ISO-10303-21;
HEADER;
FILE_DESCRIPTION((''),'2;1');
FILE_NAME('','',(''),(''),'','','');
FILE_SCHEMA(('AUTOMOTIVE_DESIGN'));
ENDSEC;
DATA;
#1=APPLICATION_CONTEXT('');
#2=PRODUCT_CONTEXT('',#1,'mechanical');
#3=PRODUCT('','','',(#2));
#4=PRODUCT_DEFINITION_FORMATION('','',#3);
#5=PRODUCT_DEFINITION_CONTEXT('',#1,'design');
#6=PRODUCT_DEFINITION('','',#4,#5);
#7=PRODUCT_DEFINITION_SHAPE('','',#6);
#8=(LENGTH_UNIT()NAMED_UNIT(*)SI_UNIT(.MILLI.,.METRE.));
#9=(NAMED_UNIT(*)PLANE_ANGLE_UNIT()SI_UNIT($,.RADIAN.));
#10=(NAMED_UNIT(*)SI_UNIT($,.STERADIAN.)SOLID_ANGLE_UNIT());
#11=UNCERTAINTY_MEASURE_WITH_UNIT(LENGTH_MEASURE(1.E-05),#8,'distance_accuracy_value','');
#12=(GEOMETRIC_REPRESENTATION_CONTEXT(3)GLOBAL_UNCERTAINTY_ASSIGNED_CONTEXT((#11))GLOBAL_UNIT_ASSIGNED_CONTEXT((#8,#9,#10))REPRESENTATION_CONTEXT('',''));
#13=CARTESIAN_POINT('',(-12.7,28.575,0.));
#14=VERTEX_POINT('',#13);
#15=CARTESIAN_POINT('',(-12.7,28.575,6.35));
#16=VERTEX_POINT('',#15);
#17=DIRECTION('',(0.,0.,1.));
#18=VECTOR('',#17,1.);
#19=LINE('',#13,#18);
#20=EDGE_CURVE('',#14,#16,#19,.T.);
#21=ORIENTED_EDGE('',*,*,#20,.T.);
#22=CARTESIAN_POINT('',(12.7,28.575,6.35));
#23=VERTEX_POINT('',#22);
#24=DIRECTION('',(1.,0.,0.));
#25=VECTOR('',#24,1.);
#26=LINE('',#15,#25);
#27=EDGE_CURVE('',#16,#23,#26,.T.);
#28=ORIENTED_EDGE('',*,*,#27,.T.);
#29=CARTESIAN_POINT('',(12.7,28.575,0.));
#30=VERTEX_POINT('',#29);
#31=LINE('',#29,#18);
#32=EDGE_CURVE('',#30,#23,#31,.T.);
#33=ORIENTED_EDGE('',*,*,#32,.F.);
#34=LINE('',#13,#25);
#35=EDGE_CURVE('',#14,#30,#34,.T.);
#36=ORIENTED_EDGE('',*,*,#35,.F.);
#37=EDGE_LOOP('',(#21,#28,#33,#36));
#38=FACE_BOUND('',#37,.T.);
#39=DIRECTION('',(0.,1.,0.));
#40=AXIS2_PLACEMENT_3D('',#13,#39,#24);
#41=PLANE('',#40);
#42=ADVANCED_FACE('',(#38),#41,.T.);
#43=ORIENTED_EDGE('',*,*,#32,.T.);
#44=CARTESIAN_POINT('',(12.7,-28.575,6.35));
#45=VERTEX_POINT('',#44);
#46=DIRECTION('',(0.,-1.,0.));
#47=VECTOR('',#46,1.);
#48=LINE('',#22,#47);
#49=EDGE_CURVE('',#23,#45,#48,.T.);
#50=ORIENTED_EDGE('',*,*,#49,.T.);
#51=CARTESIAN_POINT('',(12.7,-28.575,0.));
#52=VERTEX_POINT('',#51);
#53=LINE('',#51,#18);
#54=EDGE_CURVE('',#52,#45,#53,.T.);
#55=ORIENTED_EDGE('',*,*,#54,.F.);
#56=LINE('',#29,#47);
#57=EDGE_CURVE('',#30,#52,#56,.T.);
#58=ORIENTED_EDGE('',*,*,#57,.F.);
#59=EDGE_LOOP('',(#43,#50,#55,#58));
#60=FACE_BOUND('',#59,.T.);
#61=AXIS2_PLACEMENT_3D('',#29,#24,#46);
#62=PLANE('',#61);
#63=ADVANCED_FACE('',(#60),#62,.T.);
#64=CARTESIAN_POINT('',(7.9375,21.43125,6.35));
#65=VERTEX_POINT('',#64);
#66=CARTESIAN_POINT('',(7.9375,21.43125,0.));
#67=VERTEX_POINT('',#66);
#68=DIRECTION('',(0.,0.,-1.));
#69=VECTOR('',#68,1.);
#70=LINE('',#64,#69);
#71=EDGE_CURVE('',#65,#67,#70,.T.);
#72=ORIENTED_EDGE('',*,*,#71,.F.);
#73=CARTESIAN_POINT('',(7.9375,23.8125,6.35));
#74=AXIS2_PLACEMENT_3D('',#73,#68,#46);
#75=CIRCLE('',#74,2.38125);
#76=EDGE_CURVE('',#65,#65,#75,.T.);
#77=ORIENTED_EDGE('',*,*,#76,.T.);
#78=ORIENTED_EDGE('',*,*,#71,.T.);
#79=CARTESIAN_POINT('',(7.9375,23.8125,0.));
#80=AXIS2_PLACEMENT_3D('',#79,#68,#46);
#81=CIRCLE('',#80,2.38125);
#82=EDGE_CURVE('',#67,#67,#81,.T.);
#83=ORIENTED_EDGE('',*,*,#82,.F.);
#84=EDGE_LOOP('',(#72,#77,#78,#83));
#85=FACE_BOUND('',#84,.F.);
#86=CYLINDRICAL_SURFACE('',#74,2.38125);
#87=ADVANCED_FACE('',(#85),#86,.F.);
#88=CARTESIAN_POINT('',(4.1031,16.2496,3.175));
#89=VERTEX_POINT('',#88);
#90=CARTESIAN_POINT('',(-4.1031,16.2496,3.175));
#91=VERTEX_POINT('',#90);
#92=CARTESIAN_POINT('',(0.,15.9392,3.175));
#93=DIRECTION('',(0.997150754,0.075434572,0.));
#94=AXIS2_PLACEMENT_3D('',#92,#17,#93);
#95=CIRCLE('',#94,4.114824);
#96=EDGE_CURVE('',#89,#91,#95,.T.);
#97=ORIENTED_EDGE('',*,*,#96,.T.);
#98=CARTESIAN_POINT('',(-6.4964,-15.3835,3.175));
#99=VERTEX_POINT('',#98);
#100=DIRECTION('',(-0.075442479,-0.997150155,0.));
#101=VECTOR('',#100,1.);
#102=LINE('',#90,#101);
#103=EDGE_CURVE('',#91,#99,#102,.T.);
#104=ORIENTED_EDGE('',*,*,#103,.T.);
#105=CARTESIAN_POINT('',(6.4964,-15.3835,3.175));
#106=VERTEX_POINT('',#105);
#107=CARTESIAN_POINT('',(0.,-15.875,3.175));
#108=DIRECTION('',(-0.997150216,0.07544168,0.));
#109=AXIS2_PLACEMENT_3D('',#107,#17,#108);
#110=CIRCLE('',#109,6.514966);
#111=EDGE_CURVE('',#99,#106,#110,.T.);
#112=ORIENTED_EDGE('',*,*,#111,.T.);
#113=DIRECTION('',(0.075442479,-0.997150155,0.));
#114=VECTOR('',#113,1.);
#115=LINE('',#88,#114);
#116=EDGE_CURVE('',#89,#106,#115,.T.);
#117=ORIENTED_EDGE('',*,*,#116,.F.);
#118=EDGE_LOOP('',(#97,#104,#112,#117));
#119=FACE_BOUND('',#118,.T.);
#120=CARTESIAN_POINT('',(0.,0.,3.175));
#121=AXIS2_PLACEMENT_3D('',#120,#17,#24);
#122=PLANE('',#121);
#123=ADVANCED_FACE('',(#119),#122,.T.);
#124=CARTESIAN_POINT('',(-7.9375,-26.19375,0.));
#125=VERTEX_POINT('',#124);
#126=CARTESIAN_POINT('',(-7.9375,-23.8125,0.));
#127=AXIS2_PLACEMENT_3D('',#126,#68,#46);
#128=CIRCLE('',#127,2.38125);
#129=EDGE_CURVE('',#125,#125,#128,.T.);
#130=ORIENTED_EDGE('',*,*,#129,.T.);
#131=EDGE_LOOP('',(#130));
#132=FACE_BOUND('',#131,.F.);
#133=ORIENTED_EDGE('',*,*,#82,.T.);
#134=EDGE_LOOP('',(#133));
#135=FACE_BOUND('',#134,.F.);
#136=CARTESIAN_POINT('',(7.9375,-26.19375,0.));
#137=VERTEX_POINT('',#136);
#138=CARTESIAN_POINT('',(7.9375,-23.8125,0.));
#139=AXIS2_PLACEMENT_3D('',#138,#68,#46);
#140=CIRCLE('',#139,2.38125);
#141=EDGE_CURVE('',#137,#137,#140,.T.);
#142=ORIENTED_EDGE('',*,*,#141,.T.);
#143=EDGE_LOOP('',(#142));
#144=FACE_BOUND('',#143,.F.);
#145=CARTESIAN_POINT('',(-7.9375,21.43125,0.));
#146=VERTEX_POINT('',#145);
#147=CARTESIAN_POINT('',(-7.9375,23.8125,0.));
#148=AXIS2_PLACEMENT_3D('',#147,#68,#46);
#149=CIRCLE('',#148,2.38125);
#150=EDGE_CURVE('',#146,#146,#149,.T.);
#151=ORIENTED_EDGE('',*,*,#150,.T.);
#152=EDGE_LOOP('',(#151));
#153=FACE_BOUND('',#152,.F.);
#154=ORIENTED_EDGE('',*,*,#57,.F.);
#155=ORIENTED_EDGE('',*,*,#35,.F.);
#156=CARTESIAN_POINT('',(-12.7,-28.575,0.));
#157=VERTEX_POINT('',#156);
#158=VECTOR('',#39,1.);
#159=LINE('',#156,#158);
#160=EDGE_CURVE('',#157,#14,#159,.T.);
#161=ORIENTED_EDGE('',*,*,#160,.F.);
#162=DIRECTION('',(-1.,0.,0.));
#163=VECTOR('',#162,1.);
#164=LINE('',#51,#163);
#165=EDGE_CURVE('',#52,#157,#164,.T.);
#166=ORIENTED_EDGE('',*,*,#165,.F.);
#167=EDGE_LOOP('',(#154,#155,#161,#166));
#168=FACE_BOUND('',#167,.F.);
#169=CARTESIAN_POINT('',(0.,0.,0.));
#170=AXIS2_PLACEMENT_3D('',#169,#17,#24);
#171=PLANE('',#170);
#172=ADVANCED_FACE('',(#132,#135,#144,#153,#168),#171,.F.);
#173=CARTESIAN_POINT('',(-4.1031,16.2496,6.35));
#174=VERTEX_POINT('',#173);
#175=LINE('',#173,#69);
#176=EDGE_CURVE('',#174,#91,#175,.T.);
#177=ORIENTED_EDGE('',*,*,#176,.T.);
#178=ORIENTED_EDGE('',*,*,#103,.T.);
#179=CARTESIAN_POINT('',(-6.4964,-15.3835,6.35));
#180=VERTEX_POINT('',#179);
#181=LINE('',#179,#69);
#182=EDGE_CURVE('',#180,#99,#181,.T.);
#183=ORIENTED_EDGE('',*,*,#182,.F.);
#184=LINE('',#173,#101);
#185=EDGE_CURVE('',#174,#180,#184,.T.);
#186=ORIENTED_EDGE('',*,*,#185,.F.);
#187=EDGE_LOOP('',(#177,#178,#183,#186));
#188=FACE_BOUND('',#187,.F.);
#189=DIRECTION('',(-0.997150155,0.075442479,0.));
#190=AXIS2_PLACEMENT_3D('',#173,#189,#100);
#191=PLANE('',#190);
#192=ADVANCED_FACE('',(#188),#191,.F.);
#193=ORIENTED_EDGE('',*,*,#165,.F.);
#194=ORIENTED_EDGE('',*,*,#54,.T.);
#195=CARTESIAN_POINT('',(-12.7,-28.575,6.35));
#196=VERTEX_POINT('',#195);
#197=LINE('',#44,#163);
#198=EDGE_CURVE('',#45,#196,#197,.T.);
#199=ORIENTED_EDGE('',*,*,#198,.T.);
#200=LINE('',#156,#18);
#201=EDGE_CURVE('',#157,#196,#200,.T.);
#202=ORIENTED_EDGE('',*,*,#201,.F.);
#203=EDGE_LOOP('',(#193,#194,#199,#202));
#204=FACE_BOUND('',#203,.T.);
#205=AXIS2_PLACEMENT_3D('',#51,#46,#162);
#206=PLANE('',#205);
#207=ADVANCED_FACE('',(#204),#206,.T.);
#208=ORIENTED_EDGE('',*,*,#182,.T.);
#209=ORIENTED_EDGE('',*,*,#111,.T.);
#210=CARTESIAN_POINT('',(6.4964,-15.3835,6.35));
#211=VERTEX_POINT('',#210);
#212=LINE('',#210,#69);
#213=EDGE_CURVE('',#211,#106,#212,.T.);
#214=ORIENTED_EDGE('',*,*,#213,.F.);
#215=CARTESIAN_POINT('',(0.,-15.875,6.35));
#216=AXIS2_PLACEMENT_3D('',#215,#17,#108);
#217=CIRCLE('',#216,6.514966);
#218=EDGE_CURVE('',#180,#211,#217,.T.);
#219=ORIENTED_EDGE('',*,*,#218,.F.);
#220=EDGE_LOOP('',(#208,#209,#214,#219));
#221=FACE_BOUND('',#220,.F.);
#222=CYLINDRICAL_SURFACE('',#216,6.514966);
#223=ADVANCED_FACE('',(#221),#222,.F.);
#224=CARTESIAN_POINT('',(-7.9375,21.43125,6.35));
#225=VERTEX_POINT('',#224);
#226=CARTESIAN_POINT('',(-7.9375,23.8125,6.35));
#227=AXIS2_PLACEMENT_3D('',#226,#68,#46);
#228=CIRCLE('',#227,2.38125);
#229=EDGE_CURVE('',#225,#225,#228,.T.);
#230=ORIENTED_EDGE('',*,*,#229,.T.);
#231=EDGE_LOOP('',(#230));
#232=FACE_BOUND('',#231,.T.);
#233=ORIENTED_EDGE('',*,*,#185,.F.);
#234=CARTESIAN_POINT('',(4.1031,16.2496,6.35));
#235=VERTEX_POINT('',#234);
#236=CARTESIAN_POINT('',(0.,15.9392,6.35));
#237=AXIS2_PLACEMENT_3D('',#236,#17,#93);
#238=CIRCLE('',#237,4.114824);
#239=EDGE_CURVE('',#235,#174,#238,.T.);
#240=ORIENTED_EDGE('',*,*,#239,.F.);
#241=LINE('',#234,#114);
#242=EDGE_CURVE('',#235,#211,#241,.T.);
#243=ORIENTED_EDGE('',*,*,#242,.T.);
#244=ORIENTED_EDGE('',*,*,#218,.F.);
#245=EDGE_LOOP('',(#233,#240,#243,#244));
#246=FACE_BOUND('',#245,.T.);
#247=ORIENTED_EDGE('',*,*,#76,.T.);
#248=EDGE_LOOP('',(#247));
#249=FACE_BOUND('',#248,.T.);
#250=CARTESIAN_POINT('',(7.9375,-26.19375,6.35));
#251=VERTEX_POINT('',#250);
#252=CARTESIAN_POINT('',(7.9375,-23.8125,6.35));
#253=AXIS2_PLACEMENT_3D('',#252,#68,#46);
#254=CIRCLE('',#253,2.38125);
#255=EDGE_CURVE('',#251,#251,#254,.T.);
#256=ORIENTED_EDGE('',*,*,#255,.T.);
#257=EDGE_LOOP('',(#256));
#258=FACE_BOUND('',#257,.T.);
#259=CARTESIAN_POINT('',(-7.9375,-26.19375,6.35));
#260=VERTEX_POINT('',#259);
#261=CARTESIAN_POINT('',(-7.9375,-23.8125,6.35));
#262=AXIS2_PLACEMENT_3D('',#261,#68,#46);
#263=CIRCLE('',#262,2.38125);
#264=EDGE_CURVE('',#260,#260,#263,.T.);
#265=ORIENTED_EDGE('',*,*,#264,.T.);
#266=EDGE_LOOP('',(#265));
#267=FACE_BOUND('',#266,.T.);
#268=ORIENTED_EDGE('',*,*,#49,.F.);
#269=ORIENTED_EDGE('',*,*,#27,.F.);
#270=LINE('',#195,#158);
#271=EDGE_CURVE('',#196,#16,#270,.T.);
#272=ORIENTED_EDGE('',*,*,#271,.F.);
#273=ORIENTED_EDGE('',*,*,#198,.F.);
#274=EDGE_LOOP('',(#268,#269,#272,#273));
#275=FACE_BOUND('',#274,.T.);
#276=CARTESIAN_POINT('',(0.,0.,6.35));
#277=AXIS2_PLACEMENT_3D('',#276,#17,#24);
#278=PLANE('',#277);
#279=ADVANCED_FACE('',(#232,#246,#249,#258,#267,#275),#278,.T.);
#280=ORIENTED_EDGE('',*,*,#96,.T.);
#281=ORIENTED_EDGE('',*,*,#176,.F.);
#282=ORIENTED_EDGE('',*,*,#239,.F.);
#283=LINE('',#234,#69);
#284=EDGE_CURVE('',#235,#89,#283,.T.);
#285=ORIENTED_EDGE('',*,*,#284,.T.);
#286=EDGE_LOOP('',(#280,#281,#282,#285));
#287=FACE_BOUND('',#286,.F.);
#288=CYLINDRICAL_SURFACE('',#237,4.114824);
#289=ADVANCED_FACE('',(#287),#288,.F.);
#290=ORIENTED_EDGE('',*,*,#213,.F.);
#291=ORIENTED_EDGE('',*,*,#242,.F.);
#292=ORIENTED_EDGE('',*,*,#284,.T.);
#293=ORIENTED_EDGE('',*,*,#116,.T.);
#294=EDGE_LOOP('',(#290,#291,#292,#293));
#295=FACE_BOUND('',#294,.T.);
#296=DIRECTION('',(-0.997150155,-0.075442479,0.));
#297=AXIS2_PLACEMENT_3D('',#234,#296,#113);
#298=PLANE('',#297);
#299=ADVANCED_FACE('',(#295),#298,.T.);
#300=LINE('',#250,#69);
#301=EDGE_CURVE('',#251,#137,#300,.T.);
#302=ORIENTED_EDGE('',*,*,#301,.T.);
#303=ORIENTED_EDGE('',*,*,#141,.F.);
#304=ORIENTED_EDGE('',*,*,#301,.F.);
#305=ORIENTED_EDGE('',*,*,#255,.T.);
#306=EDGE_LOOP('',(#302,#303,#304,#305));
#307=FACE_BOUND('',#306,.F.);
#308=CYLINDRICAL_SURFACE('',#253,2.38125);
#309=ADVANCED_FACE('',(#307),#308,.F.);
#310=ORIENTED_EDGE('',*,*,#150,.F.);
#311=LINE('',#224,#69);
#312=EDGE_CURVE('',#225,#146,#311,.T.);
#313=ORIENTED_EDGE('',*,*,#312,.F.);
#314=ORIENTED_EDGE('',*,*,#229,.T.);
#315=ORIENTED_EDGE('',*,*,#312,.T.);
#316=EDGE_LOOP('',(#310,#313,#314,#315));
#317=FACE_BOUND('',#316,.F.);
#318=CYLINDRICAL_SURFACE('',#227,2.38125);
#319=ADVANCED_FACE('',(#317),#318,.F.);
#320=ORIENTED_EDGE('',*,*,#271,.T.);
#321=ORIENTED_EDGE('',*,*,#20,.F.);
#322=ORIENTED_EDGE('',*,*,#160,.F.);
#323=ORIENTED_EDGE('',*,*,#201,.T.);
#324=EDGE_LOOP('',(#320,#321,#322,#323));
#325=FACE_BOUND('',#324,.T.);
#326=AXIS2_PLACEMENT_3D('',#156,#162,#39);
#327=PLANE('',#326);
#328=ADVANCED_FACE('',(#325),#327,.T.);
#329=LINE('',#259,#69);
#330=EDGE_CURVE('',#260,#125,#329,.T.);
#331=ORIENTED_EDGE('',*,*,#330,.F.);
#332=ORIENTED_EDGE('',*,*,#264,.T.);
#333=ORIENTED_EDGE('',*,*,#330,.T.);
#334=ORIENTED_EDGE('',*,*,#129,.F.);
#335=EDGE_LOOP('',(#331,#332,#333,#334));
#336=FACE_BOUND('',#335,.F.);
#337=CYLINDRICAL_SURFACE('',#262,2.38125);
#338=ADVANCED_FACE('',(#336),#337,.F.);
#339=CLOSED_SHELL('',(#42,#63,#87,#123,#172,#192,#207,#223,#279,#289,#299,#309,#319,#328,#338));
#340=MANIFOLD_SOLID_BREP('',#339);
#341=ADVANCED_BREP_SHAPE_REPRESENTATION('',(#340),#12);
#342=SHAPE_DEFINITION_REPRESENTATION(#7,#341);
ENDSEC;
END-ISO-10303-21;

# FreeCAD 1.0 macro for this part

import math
import FreeCAD as App
import Part
import Sketcher
from FreeCAD import Vector
Q = App.Units.Quantity


def add_polygon(sketch, points):
    """Adds a closed chain of lines whose ends are joined by coincident constraints."""
    first, n = sketch.GeometryCount, len(points)
    for a, b in zip(points, points[1:] + points[:1]):
        sketch.addGeometry(Part.LineSegment(App.Vector(*a, 0), App.Vector(*b, 0)), False)
    for i in range(n):
        sketch.addConstraint(Sketcher.Constraint("Coincident", first + i, 2, first + (i + 1) % n, 1))

doc = App.newDocument("Part")
body = doc.addObject("PartDesign::Body", "Body")

sketch1 = doc.addObject("Sketcher::SketchObject", "Sketch")
body.addObject(sketch1)
sketch1.AttachmentSupport = (doc.XY_Plane, [""])
sketch1.MapMode = "FlatFace"
add_polygon(sketch1, [(13, 29), (-13, 29), (-13, -29), (13, -29)])
sketch1.addConstraint([
    Sketcher.Constraint("Horizontal", 0),
    Sketcher.Constraint("Vertical", 1),
    Sketcher.Constraint("Horizontal", 2),
    Sketcher.Constraint("Vertical", 3),
    Sketcher.Constraint("Symmetric", 0, 2, 2, 2, -1, 1),
    Sketcher.Constraint("DistanceX", 0, 2, 0, 1, Q("1 in")),
    Sketcher.Constraint("DistanceY", 1, 2, 1, 1, Q("2.25 in")),
])
pad1 = doc.addObject("PartDesign::Pad", "Pad")
body.addObject(pad1)
pad1.Profile = sketch1
pad1.Length = Q("0.25 in")

sketch2 = doc.addObject("Sketcher::SketchObject", "Sketch001")
body.addObject(sketch2)
sketch2.AttachmentSupport = (doc.XY_Plane, [""])
sketch2.MapMode = "FlatFace"
sketch2.AttachmentOffset = App.Placement(Vector(0, 0, 0.25 * 25.4), App.Rotation())
sketch2.addGeometry([
    Part.LineSegment(Vector(-4.1, 16.2, 0), Vector(-6.5, -15.4, 0)),
    Part.ArcOfCircle(Part.Circle(Vector(0, -15.9, 0), Vector(0, 0, 1), 6.5), math.radians(176), math.radians(364)),
    Part.LineSegment(Vector(6.5, -15.4, 0), Vector(4.1, 16.2, 0)),
    Part.ArcOfCircle(Part.Circle(Vector(0, 15.9, 0), Vector(0, 0, 1), 4.1), math.radians(4), math.radians(176)),
], False)
sketch2.addConstraint([
    Sketcher.Constraint("Tangent", 0, 2, 1, 1),
    Sketcher.Constraint("Tangent", 1, 2, 2, 1),
    Sketcher.Constraint("Tangent", 2, 2, 3, 1),
    Sketcher.Constraint("Tangent", 3, 2, 0, 1),
    Sketcher.Constraint("Symmetric", 0, 2, 1, 2, -2),
    Sketcher.Constraint("Radius", 3, Q("0.162 in")),
    Sketcher.Constraint("Radius", 1, Q("0.2565 in")),
    Sketcher.Constraint("DistanceY", 1, 3, 3, 3, Q("31.8142 mm")),
    Sketcher.Constraint("DistanceY", 1, 3, -1, 1, Q("0.625 in")),
])
pocket1 = doc.addObject("PartDesign::Pocket", "Pocket")
body.addObject(pocket1)
pocket1.Profile = sketch2
pocket1.Length = Q("0.125 in")

sketch3 = doc.addObject("Sketcher::SketchObject", "Sketch002")
body.addObject(sketch3)
sketch3.AttachmentSupport = (doc.XY_Plane, [""])
sketch3.MapMode = "FlatFace"
sketch3.AttachmentOffset = App.Placement(Vector(0, 0, 0.25 * 25.4), App.Rotation())
sketch3.addGeometry([
    Part.Circle(Vector(7.9, 23.8, 0), Vector(0, 0, 1), 2.4),
    Part.Circle(Vector(-7.9, 23.8, 0), Vector(0, 0, 1), 2.4),
    Part.Circle(Vector(-7.9, -23.8, 0), Vector(0, 0, 1), 2.4),
    Part.Circle(Vector(7.9, -23.8, 0), Vector(0, 0, 1), 2.4),
], False)
sketch3.addConstraint([
    Sketcher.Constraint("Equal", 0, 1),
    Sketcher.Constraint("Equal", 1, 2),
    Sketcher.Constraint("Equal", 2, 3),
    Sketcher.Constraint("Symmetric", 0, 3, 2, 3, -1, 1),
    Sketcher.Constraint("Symmetric", 1, 3, 3, 3, -1, 1),
    Sketcher.Constraint("Symmetric", 0, 3, 1, 3, -2),
    Sketcher.Constraint("Diameter", 0, Q("0.1875 in")),
    Sketcher.Constraint("DistanceX", -1, 1, 0, 3, Q("0.3125 in")),
    Sketcher.Constraint("DistanceY", -1, 1, 0, 3, Q("0.9375 in")),
])
doc.recompute()
hole = doc.addObject("PartDesign::Hole", "Hole")
body.addObject(hole)
hole.Profile = sketch3
hole.ThreadType = "None"
hole.Diameter = Q("0.1875 in")
hole.DepthType = "ThroughAll"

doc.recompute()
